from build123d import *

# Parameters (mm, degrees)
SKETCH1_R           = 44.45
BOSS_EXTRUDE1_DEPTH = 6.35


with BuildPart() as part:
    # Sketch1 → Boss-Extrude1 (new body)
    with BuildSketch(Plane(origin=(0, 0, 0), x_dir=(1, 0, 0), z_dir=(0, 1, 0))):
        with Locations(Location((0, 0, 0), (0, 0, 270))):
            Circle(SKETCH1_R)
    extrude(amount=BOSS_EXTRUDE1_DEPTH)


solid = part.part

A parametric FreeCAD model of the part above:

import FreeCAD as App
import Part
import Sketcher
from FreeCAD import Vector
Q = App.Units.Quantity

doc = App.newDocument("Part")
body = doc.addObject("PartDesign::Body", "Body")

sketch1 = body.newObject("Sketcher::SketchObject", "Sketch")
sketch1.AttachmentSupport = (doc.getObject("XZ_Plane"), [""])
sketch1.MapMode = "FlatFace"
sketch1.addGeometry(Part.Circle(Vector(0, 0, 0), Vector(0, 0, 1), 44), False)
sketch1.addConstraint([
    Sketcher.Constraint("Coincident", 0, 3, -1, 1),
    Sketcher.Constraint("Diameter", 0, Q("3.5 in")),
])
pad1 = body.newObject("PartDesign::Pad", "Pad")
pad1.Profile = sketch1
pad1.Length = Q("0.25 in")
pad1.Reversed = True

doc.recompute()
